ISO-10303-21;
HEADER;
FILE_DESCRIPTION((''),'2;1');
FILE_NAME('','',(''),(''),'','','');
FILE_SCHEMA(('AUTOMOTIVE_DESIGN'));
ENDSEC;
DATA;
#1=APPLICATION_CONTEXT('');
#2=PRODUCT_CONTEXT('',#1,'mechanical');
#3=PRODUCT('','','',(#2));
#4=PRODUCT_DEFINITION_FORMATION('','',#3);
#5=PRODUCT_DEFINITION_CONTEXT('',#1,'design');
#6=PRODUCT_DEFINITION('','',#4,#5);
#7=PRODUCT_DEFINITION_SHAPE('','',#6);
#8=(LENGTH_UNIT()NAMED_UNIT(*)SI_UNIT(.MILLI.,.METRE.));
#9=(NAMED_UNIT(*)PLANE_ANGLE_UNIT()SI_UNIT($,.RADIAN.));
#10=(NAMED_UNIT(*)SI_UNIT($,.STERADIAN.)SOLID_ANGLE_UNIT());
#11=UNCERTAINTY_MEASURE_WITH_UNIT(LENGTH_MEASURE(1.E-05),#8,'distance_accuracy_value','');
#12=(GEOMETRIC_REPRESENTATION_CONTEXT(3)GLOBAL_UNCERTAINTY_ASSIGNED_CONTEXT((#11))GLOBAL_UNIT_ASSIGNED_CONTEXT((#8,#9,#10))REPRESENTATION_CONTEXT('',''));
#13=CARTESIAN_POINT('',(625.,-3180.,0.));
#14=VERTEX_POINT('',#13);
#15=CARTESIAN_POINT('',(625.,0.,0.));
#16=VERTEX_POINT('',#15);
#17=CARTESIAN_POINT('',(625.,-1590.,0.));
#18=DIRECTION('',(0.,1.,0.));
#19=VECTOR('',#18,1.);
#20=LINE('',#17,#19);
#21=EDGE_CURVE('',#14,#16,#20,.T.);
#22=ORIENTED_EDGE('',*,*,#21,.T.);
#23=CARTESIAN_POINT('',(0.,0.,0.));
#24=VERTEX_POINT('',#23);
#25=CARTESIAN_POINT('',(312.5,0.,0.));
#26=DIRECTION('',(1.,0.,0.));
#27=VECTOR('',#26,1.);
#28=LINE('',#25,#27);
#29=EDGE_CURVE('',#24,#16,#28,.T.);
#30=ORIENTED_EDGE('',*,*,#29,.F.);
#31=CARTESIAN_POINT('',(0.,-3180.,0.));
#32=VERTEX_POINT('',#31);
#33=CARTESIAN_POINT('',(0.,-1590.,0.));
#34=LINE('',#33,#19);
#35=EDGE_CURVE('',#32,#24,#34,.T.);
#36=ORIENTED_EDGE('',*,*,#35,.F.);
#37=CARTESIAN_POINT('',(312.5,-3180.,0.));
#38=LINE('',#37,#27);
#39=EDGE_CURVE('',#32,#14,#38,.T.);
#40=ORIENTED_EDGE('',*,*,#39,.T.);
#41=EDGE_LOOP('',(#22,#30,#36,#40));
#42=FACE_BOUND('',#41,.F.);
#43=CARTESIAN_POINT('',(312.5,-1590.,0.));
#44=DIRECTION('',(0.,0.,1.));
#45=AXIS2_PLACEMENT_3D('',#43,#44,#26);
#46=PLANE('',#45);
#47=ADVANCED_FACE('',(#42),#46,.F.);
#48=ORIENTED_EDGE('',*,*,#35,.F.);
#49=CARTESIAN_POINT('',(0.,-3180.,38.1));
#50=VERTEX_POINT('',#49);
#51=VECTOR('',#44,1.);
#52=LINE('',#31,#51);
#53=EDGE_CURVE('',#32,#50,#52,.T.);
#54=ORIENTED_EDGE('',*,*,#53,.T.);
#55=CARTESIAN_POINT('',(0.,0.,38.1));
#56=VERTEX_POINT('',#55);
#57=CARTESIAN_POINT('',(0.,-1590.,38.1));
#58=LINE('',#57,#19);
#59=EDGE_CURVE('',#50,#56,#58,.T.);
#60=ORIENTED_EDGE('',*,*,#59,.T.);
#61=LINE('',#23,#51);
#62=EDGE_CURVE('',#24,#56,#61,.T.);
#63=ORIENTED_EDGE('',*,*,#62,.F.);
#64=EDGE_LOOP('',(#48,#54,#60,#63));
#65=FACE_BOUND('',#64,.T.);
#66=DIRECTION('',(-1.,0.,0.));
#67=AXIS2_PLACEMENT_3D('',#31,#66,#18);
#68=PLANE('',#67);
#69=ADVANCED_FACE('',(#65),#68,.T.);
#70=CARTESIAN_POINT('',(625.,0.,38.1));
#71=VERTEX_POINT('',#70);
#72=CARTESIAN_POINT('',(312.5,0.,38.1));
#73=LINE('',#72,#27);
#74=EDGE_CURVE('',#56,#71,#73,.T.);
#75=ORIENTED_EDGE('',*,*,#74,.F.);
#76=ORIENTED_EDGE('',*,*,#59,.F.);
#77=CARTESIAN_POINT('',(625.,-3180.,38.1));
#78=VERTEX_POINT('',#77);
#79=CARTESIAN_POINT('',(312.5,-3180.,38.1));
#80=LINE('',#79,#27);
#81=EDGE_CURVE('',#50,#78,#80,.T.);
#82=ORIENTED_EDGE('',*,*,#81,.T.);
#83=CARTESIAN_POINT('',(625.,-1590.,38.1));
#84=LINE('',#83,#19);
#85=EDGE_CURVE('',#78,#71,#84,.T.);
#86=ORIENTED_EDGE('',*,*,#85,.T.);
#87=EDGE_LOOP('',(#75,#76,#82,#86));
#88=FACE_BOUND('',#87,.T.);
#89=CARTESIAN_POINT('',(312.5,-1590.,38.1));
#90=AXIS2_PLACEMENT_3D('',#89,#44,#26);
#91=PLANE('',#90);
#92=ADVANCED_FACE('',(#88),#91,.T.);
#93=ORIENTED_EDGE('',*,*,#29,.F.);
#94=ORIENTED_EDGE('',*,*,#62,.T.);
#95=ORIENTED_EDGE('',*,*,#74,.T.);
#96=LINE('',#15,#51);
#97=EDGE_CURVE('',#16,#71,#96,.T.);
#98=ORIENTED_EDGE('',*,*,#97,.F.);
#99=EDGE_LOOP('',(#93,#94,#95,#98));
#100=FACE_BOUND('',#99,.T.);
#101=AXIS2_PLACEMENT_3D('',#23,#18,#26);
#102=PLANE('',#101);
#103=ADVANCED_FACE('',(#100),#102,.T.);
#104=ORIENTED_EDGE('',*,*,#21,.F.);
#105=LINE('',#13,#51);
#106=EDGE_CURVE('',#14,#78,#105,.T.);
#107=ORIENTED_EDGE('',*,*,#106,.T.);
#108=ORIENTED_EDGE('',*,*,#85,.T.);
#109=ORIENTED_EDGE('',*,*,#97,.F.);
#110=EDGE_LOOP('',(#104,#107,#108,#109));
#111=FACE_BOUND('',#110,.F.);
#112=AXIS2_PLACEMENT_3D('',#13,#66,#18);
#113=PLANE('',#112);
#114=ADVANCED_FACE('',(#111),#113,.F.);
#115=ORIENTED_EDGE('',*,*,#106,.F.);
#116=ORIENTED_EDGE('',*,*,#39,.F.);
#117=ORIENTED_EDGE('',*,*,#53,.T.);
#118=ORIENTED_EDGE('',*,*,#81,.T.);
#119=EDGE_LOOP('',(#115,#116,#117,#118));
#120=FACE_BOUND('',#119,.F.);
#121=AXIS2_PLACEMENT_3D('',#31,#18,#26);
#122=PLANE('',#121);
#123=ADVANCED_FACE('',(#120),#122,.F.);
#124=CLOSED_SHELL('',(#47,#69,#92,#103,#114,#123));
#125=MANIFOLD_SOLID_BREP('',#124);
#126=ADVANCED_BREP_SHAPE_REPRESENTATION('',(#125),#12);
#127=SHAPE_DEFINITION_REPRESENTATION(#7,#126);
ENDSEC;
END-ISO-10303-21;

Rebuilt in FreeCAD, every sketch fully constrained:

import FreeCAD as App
import Part
import Sketcher
from FreeCAD import Vector


def add_polygon(sketch, points):
    """Adds a closed chain of lines whose ends are joined by coincident constraints."""
    first, n = sketch.GeometryCount, len(points)
    for a, b in zip(points, points[1:] + points[:1]):
        sketch.addGeometry(Part.LineSegment(App.Vector(*a, 0), App.Vector(*b, 0)), False)
    for i in range(n):
        sketch.addConstraint(Sketcher.Constraint("Coincident", first + i, 2, first + (i + 1) % n, 1))

doc = App.newDocument("Part")
body = doc.addObject("PartDesign::Body", "Body")

sketch1 = doc.addObject("Sketcher::SketchObject", "Sketch")
body.addObject(sketch1)
sketch1.AttachmentSupport = (doc.XY_Plane, [""])
sketch1.MapMode = "FlatFace"
add_polygon(sketch1, [(0, 0), (0, -3180), (625, -3180), (625, 0)])
sketch1.addConstraint(Sketcher.Constraint("Vertical", 0))
sketch1.addConstraint(Sketcher.Constraint("Horizontal", 1))
sketch1.addConstraint(Sketcher.Constraint("Vertical", 2))
sketch1.addConstraint(Sketcher.Constraint("Horizontal", 3))
sketch1.addConstraint(Sketcher.Constraint("Coincident", 3, 2, -1, 1))
sketch1.addConstraint(Sketcher.Constraint("DistanceX", 1, 1, 1, 2, 625.0))
sketch1.addConstraint(Sketcher.Constraint("DistanceY", 0, 2, 0, 1, 3180.0))
pad1 = doc.addObject("PartDesign::Pad", "Pad")
body.addObject(pad1)
pad1.Profile = sketch1
pad1.Length = 38.1

doc.recompute()
